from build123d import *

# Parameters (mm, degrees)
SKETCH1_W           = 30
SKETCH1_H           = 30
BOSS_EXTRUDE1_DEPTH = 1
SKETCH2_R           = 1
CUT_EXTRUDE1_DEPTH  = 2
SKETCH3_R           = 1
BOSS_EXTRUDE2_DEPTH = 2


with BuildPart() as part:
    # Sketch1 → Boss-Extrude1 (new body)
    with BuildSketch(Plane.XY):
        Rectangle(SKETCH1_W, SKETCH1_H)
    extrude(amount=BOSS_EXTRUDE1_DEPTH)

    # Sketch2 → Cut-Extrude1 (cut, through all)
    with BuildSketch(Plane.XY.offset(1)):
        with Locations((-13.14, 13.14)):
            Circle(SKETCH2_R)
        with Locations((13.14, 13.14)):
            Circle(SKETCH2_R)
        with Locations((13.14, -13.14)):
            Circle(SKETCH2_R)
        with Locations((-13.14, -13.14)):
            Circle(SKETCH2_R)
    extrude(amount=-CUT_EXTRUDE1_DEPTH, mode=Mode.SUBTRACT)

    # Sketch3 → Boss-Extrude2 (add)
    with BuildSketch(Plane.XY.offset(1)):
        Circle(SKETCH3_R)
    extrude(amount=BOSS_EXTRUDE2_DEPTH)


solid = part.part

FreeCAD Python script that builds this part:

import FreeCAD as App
import Part
import Sketcher

V = App.Vector


def add_polygon(sketch, points):
    """Adds a closed chain of lines whose ends are joined by coincident constraints."""
    first, n = sketch.GeometryCount, len(points)
    for a, b in zip(points, points[1:] + points[:1]):
        sketch.addGeometry(Part.LineSegment(App.Vector(*a, 0), App.Vector(*b, 0)), False)
    for i in range(n):
        sketch.addConstraint(Sketcher.Constraint("Coincident", first + i, 2, first + (i + 1) % n, 1))

doc = App.newDocument("Part")
body = doc.addObject("PartDesign::Body", "Body")

sketch1 = body.newObject("Sketcher::SketchObject", "Sketch")
sketch1.AttachmentSupport = (doc.getObject("XY_Plane"), [""])
sketch1.MapMode = "FlatFace"
add_polygon(sketch1, [(-15, 15), (-15, -15), (15, -15), (15, 15)])
sketch1.addConstraint(Sketcher.Constraint("Vertical", 0))
sketch1.addConstraint(Sketcher.Constraint("Horizontal", 1))
sketch1.addConstraint(Sketcher.Constraint("Vertical", 2))
sketch1.addConstraint(Sketcher.Constraint("Horizontal", 3))
sketch1.addConstraint(Sketcher.Constraint("Symmetric", 0, 2, 2, 2, -1, 1))
sketch1.addConstraint(Sketcher.Constraint("Equal", 3, 0))
sketch1.addConstraint(Sketcher.Constraint("DistanceX", 1, 1, 1, 2, 30.0))
pad1 = body.newObject("PartDesign::Pad", "Pad")
pad1.Profile = sketch1
pad1.Length = 1

sketch2 = body.newObject("Sketcher::SketchObject", "Sketch001")
sketch2.AttachmentSupport = (doc.getObject("XY_Plane"), [""])
sketch2.MapMode = "FlatFace"
sketch2.AttachmentOffset = App.Placement(V(0, 0, 1), App.Rotation())
sketch2.addGeometry(Part.Circle(V(-13.14, 13.14, 0), V(0, 0, 1), 1), False)
sketch2.addGeometry(Part.Circle(V(13.14, 13.14, 0), V(0, 0, 1), 1), False)
sketch2.addGeometry(Part.Circle(V(13.14, -13.14, 0), V(0, 0, 1), 1), False)
sketch2.addGeometry(Part.Circle(V(-13.14, -13.14, 0), V(0, 0, 1), 1), False)
sketch2.addConstraint(Sketcher.Constraint("Equal", 0, 1))
sketch2.addConstraint(Sketcher.Constraint("Equal", 1, 2))
sketch2.addConstraint(Sketcher.Constraint("Equal", 2, 3))
sketch2.addConstraint(Sketcher.Constraint("Symmetric", 0, 3, 2, 3, -1, 1))
sketch2.addConstraint(Sketcher.Constraint("Symmetric", 1, 3, 3, 3, -1, 1))
sketch2.addConstraint(Sketcher.Constraint("Symmetric", 0, 3, 1, 3, -2))
sketch2.addConstraint(Sketcher.Constraint("Diameter", 0, 2.0))
sketch2.addConstraint(Sketcher.Constraint("DistanceX", 0, 3, -1, 1, 13.14))
sketch2.addConstraint(Sketcher.Constraint("DistanceY", -1, 1, 0, 3, 13.14))
pocket1 = body.newObject("PartDesign::Pocket", "Pocket")
pocket1.Profile = sketch2
pocket1.Type = "ThroughAll"

sketch3 = body.newObject("Sketcher::SketchObject", "Sketch002")
sketch3.AttachmentSupport = (doc.getObject("XY_Plane"), [""])
sketch3.MapMode = "FlatFace"
sketch3.AttachmentOffset = App.Placement(V(0, 0, 1), App.Rotation())
sketch3.addGeometry(Part.Circle(V(0, 0, 0), V(0, 0, 1), 1), False)
sketch3.addConstraint(Sketcher.Constraint("Coincident", 0, 3, -1, 1))
sketch3.addConstraint(Sketcher.Constraint("Diameter", 0, 2.0))
pad2 = body.newObject("PartDesign::Pad", "Pad001")
pad2.Profile = sketch3
pad2.Length = 2

doc.recompute()
